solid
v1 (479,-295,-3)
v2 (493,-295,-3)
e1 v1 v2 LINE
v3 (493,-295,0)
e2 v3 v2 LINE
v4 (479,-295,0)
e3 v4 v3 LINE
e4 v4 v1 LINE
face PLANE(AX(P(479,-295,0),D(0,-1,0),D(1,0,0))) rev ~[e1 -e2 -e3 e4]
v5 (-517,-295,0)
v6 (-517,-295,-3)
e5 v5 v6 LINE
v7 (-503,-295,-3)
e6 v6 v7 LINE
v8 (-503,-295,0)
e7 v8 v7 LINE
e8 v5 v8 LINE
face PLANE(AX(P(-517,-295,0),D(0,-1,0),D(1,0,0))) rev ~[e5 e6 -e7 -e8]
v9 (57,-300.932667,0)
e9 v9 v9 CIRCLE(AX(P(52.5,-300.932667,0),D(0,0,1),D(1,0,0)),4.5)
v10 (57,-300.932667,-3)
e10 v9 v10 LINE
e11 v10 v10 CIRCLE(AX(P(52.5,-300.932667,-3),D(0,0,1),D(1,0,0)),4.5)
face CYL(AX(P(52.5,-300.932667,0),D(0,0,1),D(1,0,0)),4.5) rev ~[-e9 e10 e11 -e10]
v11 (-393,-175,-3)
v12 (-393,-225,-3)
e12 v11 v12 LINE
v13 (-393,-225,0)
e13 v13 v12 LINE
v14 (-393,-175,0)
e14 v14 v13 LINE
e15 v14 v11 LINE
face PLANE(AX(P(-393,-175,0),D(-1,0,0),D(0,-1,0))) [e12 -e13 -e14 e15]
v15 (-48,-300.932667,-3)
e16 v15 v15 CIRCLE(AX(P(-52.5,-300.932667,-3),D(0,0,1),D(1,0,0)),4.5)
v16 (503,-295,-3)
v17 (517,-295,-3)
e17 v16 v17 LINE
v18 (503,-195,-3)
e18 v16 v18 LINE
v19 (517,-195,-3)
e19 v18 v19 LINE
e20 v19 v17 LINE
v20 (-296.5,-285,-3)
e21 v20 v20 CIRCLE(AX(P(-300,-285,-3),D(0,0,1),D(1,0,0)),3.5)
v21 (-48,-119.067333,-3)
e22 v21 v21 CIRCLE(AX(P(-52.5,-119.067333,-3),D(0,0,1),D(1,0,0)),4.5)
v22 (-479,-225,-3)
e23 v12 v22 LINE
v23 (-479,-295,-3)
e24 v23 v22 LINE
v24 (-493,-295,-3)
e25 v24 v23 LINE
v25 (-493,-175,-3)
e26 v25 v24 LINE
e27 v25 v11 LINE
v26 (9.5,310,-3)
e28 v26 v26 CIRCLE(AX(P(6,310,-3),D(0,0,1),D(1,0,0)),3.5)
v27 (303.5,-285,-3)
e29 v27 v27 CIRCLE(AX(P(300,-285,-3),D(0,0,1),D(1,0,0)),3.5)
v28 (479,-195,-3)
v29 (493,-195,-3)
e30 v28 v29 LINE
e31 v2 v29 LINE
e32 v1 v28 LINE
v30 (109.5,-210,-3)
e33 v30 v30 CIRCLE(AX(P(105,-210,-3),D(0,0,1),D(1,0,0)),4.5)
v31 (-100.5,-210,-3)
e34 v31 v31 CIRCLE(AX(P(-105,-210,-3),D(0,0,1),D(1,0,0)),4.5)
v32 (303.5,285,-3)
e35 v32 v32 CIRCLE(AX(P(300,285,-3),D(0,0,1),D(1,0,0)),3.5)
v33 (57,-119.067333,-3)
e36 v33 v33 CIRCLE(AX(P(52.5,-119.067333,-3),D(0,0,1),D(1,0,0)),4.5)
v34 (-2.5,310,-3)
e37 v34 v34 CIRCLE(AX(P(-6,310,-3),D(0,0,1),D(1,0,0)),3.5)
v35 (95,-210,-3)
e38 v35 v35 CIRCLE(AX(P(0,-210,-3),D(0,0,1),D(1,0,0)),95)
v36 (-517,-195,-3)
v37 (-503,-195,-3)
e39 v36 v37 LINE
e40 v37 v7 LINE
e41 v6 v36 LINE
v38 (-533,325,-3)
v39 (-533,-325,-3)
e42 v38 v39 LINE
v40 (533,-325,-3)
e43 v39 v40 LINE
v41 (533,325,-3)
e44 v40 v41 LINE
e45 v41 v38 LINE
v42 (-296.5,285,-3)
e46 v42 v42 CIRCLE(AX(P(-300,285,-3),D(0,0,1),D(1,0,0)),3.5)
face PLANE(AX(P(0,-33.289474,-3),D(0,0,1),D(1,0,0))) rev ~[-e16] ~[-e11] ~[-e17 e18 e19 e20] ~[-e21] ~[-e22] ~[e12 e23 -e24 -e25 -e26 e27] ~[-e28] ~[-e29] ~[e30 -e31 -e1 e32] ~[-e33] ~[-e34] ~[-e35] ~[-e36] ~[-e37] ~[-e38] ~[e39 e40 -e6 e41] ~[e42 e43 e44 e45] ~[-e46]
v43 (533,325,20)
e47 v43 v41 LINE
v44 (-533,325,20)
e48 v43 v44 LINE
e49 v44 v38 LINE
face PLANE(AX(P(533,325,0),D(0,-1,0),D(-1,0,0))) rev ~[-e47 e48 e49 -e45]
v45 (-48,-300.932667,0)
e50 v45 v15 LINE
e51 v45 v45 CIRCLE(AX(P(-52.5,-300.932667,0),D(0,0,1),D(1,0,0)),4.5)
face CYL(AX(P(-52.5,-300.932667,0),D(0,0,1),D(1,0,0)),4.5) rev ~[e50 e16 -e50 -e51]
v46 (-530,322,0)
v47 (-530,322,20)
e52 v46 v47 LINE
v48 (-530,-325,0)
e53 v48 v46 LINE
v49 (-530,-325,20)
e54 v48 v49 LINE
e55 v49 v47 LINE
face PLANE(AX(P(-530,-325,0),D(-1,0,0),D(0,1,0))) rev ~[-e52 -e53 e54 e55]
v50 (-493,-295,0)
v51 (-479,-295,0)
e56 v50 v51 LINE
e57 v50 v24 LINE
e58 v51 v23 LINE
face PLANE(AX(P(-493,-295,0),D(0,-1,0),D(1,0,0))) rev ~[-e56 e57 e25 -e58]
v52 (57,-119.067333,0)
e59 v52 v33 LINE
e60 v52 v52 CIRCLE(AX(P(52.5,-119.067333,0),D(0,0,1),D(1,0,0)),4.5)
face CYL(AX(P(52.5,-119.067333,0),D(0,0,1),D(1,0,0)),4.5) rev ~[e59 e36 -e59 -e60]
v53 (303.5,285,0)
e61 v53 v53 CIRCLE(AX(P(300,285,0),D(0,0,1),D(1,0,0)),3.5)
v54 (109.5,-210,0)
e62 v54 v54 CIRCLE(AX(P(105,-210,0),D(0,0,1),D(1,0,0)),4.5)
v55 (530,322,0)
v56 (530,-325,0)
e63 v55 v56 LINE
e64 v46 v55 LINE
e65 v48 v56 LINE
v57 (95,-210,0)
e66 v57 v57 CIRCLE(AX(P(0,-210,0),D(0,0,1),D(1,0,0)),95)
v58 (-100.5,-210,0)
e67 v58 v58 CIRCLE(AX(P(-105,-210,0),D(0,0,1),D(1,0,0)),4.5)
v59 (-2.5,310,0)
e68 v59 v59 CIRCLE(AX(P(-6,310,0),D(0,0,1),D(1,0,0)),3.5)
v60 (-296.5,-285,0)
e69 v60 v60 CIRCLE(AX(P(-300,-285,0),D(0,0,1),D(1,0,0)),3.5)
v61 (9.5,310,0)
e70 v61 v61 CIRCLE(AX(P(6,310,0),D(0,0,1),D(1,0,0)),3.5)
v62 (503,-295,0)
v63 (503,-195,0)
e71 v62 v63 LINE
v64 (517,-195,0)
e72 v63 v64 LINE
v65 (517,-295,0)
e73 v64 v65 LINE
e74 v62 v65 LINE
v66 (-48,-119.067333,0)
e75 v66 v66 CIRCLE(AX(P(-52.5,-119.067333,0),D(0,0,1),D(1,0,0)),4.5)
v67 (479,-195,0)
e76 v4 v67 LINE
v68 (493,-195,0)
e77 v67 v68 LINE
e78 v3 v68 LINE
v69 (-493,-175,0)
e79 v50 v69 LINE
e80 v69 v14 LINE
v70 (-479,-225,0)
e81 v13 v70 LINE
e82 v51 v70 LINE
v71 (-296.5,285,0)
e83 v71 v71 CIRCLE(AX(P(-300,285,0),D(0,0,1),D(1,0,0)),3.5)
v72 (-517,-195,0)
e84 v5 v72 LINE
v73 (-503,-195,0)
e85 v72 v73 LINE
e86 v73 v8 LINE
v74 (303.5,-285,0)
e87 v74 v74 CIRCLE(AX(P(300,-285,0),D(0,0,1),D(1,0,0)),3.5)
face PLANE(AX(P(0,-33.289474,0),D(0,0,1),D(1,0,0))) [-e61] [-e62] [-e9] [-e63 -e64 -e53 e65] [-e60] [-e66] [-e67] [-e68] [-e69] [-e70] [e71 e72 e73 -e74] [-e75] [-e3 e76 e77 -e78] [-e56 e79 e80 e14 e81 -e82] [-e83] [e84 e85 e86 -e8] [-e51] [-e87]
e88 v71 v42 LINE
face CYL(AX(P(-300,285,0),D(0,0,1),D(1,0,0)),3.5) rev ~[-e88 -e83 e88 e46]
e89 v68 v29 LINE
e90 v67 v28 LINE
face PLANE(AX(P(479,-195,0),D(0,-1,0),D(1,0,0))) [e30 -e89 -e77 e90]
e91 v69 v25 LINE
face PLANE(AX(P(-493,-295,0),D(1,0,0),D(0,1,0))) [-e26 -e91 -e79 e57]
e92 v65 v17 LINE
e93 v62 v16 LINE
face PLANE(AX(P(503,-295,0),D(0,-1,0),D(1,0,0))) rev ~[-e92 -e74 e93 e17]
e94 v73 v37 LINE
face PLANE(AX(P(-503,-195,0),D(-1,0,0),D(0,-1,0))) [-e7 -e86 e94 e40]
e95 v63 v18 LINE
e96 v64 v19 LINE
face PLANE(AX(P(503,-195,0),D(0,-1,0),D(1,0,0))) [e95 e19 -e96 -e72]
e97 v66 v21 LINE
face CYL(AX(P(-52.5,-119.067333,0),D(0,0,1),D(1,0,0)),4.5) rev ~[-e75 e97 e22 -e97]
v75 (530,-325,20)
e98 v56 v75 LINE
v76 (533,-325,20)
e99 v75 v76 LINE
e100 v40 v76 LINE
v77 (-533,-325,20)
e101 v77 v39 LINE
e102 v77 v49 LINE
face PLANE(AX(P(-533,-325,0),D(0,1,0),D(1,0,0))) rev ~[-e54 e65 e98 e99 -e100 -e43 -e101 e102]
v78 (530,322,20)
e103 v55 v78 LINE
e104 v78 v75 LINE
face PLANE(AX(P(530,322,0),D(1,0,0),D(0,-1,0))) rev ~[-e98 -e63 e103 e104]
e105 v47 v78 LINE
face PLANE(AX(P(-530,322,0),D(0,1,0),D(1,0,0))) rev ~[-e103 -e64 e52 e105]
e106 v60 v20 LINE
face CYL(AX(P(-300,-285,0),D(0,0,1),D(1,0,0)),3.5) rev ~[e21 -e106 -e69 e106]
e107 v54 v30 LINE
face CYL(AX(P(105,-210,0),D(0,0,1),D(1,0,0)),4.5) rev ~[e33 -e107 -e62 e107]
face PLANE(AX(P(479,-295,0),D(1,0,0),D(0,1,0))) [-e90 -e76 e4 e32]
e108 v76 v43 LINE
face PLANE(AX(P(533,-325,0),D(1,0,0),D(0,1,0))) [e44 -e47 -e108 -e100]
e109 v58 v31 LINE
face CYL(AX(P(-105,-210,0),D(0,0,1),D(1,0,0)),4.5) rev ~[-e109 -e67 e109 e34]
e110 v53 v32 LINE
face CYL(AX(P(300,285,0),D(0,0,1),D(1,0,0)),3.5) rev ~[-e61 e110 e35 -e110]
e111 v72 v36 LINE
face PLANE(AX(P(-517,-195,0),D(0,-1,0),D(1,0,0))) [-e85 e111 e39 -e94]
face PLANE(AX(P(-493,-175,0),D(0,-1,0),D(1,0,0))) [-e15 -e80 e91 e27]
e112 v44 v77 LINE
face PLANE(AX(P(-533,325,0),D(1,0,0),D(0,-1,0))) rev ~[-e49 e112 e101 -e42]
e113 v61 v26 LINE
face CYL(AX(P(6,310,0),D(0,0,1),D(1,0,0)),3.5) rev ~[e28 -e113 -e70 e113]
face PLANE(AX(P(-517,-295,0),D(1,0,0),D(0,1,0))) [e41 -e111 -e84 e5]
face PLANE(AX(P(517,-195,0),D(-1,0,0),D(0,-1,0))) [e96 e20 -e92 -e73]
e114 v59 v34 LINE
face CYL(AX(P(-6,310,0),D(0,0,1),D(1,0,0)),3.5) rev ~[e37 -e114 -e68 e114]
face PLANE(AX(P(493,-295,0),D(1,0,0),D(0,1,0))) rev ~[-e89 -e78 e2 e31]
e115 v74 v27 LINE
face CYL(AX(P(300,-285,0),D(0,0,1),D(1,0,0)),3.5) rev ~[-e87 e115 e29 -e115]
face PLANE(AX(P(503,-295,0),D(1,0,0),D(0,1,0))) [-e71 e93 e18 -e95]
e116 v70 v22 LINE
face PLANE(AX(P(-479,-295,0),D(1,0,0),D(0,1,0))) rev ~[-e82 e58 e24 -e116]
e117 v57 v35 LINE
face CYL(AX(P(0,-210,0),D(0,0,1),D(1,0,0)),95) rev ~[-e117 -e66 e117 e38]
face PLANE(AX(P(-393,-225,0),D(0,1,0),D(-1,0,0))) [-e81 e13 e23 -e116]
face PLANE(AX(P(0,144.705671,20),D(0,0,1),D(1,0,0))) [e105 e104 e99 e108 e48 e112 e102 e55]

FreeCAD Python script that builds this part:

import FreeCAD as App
import Part
import Sketcher

V = App.Vector
Q = App.Units.Quantity

doc = App.newDocument("Part")
body = doc.addObject("PartDesign::Body", "Body")

# Sketch on XY plane
sketch1 = doc.addObject("Sketcher::SketchObject", "Sketch")
body.addObject(sketch1)
sketch1.AttachmentSupport = (doc.XY_Plane, [""])
sketch1.MapMode = "FlatFace"
sketch1.addGeometry([
    Part.LineSegment(V(533, -325, 0), V(533, 325, 0)),  # 0
    Part.LineSegment(V(533, 325, 0), V(-533, 325, 0)),  # 1
    Part.LineSegment(V(-533, 325, 0), V(-533, -325, 0)),  # 2
    Part.LineSegment(V(-533, -325, 0), V(533, -325, 0)),  # 3
    Part.LineSegment(V(503, -295, 0), V(503, -195, 0)),  # 4
    Part.LineSegment(V(503, -195, 0), V(517, -195, 0)),  # 5
    Part.LineSegment(V(517, -195, 0), V(517, -295, 0)),  # 6
    Part.LineSegment(V(517, -295, 0), V(503, -295, 0)),  # 7
    Part.LineSegment(V(-517, -295, 0), V(-517, -195, 0)),  # 8
    Part.LineSegment(V(-517, -195, 0), V(-503, -195, 0)),  # 9
    Part.LineSegment(V(-503, -195, 0), V(-503, -295, 0)),  # 10
    Part.LineSegment(V(-503, -295, 0), V(-517, -295, 0)),  # 11
    Part.Circle(V(-300, -285, 0), V(0, 0, 1), 3.5),  # 12
    Part.LineSegment(V(-493, -225, 0), V(-493, -175, 0)),  # 13
    Part.LineSegment(V(-493, -175, 0), V(-393, -175, 0)),  # 14
    Part.LineSegment(V(-393, -175, 0), V(-393, -225, 0)),  # 15
    Part.LineSegment(V(-393, -225, 0), V(-493, -225, 0)),  # 16
    Part.Circle(V(-105, -210, 0), V(0, 0, 1), 4.5),  # 17
    Part.Circle(V(-52.5, -300.9, 0), V(0, 0, 1), 4.5),  # 18
    Part.Circle(V(52.5, -300.9, 0), V(0, 0, 1), 4.5),  # 19
    Part.Circle(V(0, -210, 0), V(0, 0, 1), 95),  # 20
    Part.Circle(V(300, -285, 0), V(0, 0, 1), 3.5),  # 21
    Part.Circle(V(105, -210, 0), V(0, 0, 1), 4.5),  # 22
    Part.Circle(V(-52.5, -119.1, 0), V(0, 0, 1), 4.5),  # 23
    Part.Circle(V(52.5, -119.1, 0), V(0, 0, 1), 4.5),  # 24
    Part.Circle(V(-300, 285, 0), V(0, 0, 1), 3.5),  # 25
    Part.Circle(V(-6, 310, 0), V(0, 0, 1), 3.5),  # 26
    Part.Circle(V(6, 310, 0), V(0, 0, 1), 3.5),  # 27
    Part.Circle(V(300, 285, 0), V(0, 0, 1), 3.5),  # 28
], False)
sketch1.addConstraint([
    Sketcher.Constraint("Coincident", 0, 2, 1, 1),
    Sketcher.Constraint("Coincident", 1, 2, 2, 1),
    Sketcher.Constraint("Coincident", 2, 2, 3, 1),
    Sketcher.Constraint("Coincident", 3, 2, 0, 1),
    Sketcher.Constraint("Coincident", 4, 2, 5, 1),
    Sketcher.Constraint("Coincident", 5, 2, 6, 1),
    Sketcher.Constraint("Coincident", 6, 2, 7, 1),
    Sketcher.Constraint("Coincident", 7, 2, 4, 1),
    Sketcher.Constraint("Coincident", 8, 2, 9, 1),
    Sketcher.Constraint("Coincident", 9, 2, 10, 1),
    Sketcher.Constraint("Coincident", 10, 2, 11, 1),
    Sketcher.Constraint("Coincident", 11, 2, 8, 1),
    Sketcher.Constraint("Coincident", 13, 2, 14, 1),
    Sketcher.Constraint("Coincident", 14, 2, 15, 1),
    Sketcher.Constraint("Coincident", 15, 2, 16, 1),
    Sketcher.Constraint("Coincident", 16, 2, 13, 1),
    Sketcher.Constraint("Vertical", 0),
    Sketcher.Constraint("Horizontal", 1),
    Sketcher.Constraint("Vertical", 2),
    Sketcher.Constraint("Horizontal", 3),
    Sketcher.Constraint("Vertical", 4),
    Sketcher.Constraint("Horizontal", 5),
    Sketcher.Constraint("Vertical", 6),
    Sketcher.Constraint("Horizontal", 7),
    Sketcher.Constraint("Vertical", 8),
    Sketcher.Constraint("Horizontal", 9),
    Sketcher.Constraint("Vertical", 10),
    Sketcher.Constraint("Horizontal", 11),
    Sketcher.Constraint("Vertical", 13),
    Sketcher.Constraint("Horizontal", 14),
    Sketcher.Constraint("Vertical", 15),
    Sketcher.Constraint("Horizontal", 16),
    Sketcher.Constraint("Equal", 17, 18),
    Sketcher.Constraint("Equal", 18, 19),
    Sketcher.Constraint("Equal", 12, 21),
    Sketcher.Constraint("Equal", 19, 22),
    Sketcher.Constraint("Equal", 22, 23),
    Sketcher.Constraint("Equal", 23, 24),
    Sketcher.Constraint("Equal", 21, 25),
    Sketcher.Constraint("Equal", 25, 26),
    Sketcher.Constraint("Equal", 26, 27),
    Sketcher.Constraint("Equal", 27, 28),
    Sketcher.Constraint("Symmetric", 21, 3, 25, 3, -1, 1),
    Sketcher.Constraint("Symmetric", 12, 3, 28, 3, -1, 1),
    Sketcher.Constraint("Symmetric", 0, 2, 2, 2, -1, 1),
    Sketcher.Constraint("Symmetric", 18, 3, 19, 3, -2),
    Sketcher.Constraint("Symmetric", 12, 3, 21, 3, -2),
    Sketcher.Constraint("Symmetric", 17, 3, 22, 3, -2),
    Sketcher.Constraint("Symmetric", 23, 3, 24, 3, -2),
    Sketcher.Constraint("Symmetric", 26, 3, 27, 3, -2),
    Sketcher.Constraint("Symmetric", 5, 2, 8, 2, -2),
    Sketcher.Constraint("Symmetric", 7, 2, 10, 2, -2),
    Sketcher.Constraint("PointOnObject", 20, 3, -2),
    Sketcher.Constraint("Horizontal", 17, 3, 20, 3),
    Sketcher.Constraint("Vertical", 18, 3, 23, 3),
    Sketcher.Constraint("Equal", 16, 4),
    Sketcher.Constraint("Diameter", 12, Q("7 mm")),
    Sketcher.Constraint("Diameter", 17, Q("9 mm")),
    Sketcher.Constraint("Diameter", 20, Q("190 mm")),
    Sketcher.Constraint("DistanceX", 1, 2, 1, 1, Q("1066 mm")),
    Sketcher.Constraint("DistanceX", 5, 1, 5, 2, Q("14 mm")),
    Sketcher.Constraint("DistanceX", 14, 1, 14, 2, Q("100 mm")),
    Sketcher.Constraint("DistanceY", 0, 1, 0, 2, Q("650 mm")),
    Sketcher.Constraint("DistanceY", 13, 1, 13, 2, Q("50 mm")),
    Sketcher.Constraint("DistanceX", 12, 3, -1, 1, Q("300 mm")),
    Sketcher.Constraint("DistanceY", 12, 3, -1, 1, Q("285 mm")),
    Sketcher.Constraint("DistanceX", 17, 3, -1, 1, Q("105 mm")),
    Sketcher.Constraint("DistanceY", 17, 3, -1, 1, Q("210 mm")),
    Sketcher.Constraint("DistanceX", 26, 3, -1, 1, Q("6 mm")),
    Sketcher.Constraint("DistanceY", -1, 1, 26, 3, Q("310 mm")),
    Sketcher.Constraint("DistanceX", -1, 1, 4, 2, Q("503 mm")),
    Sketcher.Constraint("DistanceY", 4, 2, -1, 1, Q("195 mm")),
    Sketcher.Constraint("DistanceX", 13, 2, -1, 1, Q("493 mm")),
    Sketcher.Constraint("DistanceY", 13, 2, -1, 1, Q("175 mm")),
    Sketcher.Constraint("DistanceX", 18, 3, 19, 3, Q("105 mm")),
    Sketcher.Constraint("DistanceY", 18, 3, -1, 1, Q("300.932667 mm")),
    Sketcher.Constraint("DistanceY", 23, 3, -1, 1, Q("119.067333 mm")),
])
pad1 = doc.addObject("PartDesign::Pad", "Pad")
body.addObject(pad1)
pad1.Profile = sketch1
pad1.Length = 3
pad1.Reversed = True

# Sketch on XY plane
sketch2 = doc.addObject("Sketcher::SketchObject", "Sketch001")
body.addObject(sketch2)
sketch2.AttachmentSupport = (doc.XY_Plane, [""])
sketch2.MapMode = "FlatFace"
sketch2.addGeometry([
    Part.LineSegment(V(-533, -325, 0), V(-530, -325, 0)),  # 0
    Part.LineSegment(V(-530, -325, 0), V(-530, 322, 0)),  # 1
    Part.LineSegment(V(-530, 322, 0), V(530, 322, 0)),  # 2
    Part.LineSegment(V(530, 322, 0), V(530, -325, 0)),  # 3
    Part.LineSegment(V(530, -325, 0), V(533, -325, 0)),  # 4
    Part.LineSegment(V(533, -325, 0), V(533, 325, 0)),  # 5
    Part.LineSegment(V(533, 325, 0), V(-533, 325, 0)),  # 6
    Part.LineSegment(V(-533, 325, 0), V(-533, -325, 0)),  # 7
], False)
sketch2.addConstraint([
    Sketcher.Constraint("Coincident", 0, 2, 1, 1),
    Sketcher.Constraint("Coincident", 1, 2, 2, 1),
    Sketcher.Constraint("Coincident", 2, 2, 3, 1),
    Sketcher.Constraint("Coincident", 3, 2, 4, 1),
    Sketcher.Constraint("Coincident", 4, 2, 5, 1),
    Sketcher.Constraint("Coincident", 5, 2, 6, 1),
    Sketcher.Constraint("Coincident", 6, 2, 7, 1),
    Sketcher.Constraint("Coincident", 7, 2, 0, 1),
    Sketcher.Constraint("Horizontal", 0),
    Sketcher.Constraint("Vertical", 1),
    Sketcher.Constraint("Horizontal", 2),
    Sketcher.Constraint("Vertical", 3),
    Sketcher.Constraint("Horizontal", 4),
    Sketcher.Constraint("Vertical", 5),
    Sketcher.Constraint("Horizontal", 6),
    Sketcher.Constraint("Vertical", 7),
    Sketcher.Constraint("Symmetric", 4, 2, 6, 2, -1, 1),
    Sketcher.Constraint("Symmetric", 0, 2, 3, 2, -2),
    Sketcher.Constraint("DistanceX", 0, 1, 0, 2, Q("3 mm")),
    Sketcher.Constraint("DistanceX", 2, 1, 2, 2, Q("1060 mm")),
    Sketcher.Constraint("DistanceY", 1, 1, 1, 2, Q("647 mm")),
    Sketcher.Constraint("DistanceY", 5, 1, 5, 2, Q("650 mm")),
])
pad2 = doc.addObject("PartDesign::Pad", "Pad001")
body.addObject(pad2)
pad2.Profile = sketch2
pad2.Length = 20

# Sketch on XY plane
sketch3 = doc.addObject("Sketcher::SketchObject", "Sketch002")
body.addObject(sketch3)
sketch3.AttachmentSupport = (doc.XY_Plane, [""])
sketch3.MapMode = "FlatFace"
sketch3.addGeometry([
    Part.LineSegment(V(-493, -225, 0), V(-493, -295, 0)),  # 0
    Part.LineSegment(V(-493, -295, 0), V(-479, -295, 0)),  # 1
    Part.LineSegment(V(-479, -295, 0), V(-479, -225, 0)),  # 2
    Part.LineSegment(V(-479, -225, 0), V(-493, -225, 0)),  # 3
    Part.LineSegment(V(479, -195, 0), V(479, -295, 0)),  # 4
    Part.LineSegment(V(479, -295, 0), V(493, -295, 0)),  # 5
    Part.LineSegment(V(493, -295, 0), V(493, -195, 0)),  # 6
    Part.LineSegment(V(493, -195, 0), V(479, -195, 0)),  # 7
], False)
sketch3.addConstraint([
    Sketcher.Constraint("Coincident", 0, 2, 1, 1),
    Sketcher.Constraint("Coincident", 1, 2, 2, 1),
    Sketcher.Constraint("Coincident", 2, 2, 3, 1),
    Sketcher.Constraint("Coincident", 3, 2, 0, 1),
    Sketcher.Constraint("Coincident", 4, 2, 5, 1),
    Sketcher.Constraint("Coincident", 5, 2, 6, 1),
    Sketcher.Constraint("Coincident", 6, 2, 7, 1),
    Sketcher.Constraint("Coincident", 7, 2, 4, 1),
    Sketcher.Constraint("Vertical", 0),
    Sketcher.Constraint("Horizontal", 1),
    Sketcher.Constraint("Vertical", 2),
    Sketcher.Constraint("Horizontal", 3),
    Sketcher.Constraint("Vertical", 4),
    Sketcher.Constraint("Horizontal", 5),
    Sketcher.Constraint("Vertical", 6),
    Sketcher.Constraint("Horizontal", 7),
    Sketcher.Constraint("Symmetric", 1, 2, 4, 2, -2),
    Sketcher.Constraint("Equal", 3, 5),
    Sketcher.Constraint("DistanceX", 1, 1, 1, 2, Q("14 mm")),
    Sketcher.Constraint("DistanceY", 0, 2, 0, 1, Q("70 mm")),
    Sketcher.Constraint("DistanceY", 4, 2, 4, 1, Q("100 mm")),
    Sketcher.Constraint("DistanceX", 0, 2, -1, 1, Q("493 mm")),
    Sketcher.Constraint("DistanceY", 0, 2, -1, 1, Q("295 mm")),
])
pocket1 = doc.addObject("PartDesign::Pocket", "Pocket")
body.addObject(pocket1)
pocket1.Profile = sketch3
pocket1.Type = "ThroughAll"

doc.recompute()
